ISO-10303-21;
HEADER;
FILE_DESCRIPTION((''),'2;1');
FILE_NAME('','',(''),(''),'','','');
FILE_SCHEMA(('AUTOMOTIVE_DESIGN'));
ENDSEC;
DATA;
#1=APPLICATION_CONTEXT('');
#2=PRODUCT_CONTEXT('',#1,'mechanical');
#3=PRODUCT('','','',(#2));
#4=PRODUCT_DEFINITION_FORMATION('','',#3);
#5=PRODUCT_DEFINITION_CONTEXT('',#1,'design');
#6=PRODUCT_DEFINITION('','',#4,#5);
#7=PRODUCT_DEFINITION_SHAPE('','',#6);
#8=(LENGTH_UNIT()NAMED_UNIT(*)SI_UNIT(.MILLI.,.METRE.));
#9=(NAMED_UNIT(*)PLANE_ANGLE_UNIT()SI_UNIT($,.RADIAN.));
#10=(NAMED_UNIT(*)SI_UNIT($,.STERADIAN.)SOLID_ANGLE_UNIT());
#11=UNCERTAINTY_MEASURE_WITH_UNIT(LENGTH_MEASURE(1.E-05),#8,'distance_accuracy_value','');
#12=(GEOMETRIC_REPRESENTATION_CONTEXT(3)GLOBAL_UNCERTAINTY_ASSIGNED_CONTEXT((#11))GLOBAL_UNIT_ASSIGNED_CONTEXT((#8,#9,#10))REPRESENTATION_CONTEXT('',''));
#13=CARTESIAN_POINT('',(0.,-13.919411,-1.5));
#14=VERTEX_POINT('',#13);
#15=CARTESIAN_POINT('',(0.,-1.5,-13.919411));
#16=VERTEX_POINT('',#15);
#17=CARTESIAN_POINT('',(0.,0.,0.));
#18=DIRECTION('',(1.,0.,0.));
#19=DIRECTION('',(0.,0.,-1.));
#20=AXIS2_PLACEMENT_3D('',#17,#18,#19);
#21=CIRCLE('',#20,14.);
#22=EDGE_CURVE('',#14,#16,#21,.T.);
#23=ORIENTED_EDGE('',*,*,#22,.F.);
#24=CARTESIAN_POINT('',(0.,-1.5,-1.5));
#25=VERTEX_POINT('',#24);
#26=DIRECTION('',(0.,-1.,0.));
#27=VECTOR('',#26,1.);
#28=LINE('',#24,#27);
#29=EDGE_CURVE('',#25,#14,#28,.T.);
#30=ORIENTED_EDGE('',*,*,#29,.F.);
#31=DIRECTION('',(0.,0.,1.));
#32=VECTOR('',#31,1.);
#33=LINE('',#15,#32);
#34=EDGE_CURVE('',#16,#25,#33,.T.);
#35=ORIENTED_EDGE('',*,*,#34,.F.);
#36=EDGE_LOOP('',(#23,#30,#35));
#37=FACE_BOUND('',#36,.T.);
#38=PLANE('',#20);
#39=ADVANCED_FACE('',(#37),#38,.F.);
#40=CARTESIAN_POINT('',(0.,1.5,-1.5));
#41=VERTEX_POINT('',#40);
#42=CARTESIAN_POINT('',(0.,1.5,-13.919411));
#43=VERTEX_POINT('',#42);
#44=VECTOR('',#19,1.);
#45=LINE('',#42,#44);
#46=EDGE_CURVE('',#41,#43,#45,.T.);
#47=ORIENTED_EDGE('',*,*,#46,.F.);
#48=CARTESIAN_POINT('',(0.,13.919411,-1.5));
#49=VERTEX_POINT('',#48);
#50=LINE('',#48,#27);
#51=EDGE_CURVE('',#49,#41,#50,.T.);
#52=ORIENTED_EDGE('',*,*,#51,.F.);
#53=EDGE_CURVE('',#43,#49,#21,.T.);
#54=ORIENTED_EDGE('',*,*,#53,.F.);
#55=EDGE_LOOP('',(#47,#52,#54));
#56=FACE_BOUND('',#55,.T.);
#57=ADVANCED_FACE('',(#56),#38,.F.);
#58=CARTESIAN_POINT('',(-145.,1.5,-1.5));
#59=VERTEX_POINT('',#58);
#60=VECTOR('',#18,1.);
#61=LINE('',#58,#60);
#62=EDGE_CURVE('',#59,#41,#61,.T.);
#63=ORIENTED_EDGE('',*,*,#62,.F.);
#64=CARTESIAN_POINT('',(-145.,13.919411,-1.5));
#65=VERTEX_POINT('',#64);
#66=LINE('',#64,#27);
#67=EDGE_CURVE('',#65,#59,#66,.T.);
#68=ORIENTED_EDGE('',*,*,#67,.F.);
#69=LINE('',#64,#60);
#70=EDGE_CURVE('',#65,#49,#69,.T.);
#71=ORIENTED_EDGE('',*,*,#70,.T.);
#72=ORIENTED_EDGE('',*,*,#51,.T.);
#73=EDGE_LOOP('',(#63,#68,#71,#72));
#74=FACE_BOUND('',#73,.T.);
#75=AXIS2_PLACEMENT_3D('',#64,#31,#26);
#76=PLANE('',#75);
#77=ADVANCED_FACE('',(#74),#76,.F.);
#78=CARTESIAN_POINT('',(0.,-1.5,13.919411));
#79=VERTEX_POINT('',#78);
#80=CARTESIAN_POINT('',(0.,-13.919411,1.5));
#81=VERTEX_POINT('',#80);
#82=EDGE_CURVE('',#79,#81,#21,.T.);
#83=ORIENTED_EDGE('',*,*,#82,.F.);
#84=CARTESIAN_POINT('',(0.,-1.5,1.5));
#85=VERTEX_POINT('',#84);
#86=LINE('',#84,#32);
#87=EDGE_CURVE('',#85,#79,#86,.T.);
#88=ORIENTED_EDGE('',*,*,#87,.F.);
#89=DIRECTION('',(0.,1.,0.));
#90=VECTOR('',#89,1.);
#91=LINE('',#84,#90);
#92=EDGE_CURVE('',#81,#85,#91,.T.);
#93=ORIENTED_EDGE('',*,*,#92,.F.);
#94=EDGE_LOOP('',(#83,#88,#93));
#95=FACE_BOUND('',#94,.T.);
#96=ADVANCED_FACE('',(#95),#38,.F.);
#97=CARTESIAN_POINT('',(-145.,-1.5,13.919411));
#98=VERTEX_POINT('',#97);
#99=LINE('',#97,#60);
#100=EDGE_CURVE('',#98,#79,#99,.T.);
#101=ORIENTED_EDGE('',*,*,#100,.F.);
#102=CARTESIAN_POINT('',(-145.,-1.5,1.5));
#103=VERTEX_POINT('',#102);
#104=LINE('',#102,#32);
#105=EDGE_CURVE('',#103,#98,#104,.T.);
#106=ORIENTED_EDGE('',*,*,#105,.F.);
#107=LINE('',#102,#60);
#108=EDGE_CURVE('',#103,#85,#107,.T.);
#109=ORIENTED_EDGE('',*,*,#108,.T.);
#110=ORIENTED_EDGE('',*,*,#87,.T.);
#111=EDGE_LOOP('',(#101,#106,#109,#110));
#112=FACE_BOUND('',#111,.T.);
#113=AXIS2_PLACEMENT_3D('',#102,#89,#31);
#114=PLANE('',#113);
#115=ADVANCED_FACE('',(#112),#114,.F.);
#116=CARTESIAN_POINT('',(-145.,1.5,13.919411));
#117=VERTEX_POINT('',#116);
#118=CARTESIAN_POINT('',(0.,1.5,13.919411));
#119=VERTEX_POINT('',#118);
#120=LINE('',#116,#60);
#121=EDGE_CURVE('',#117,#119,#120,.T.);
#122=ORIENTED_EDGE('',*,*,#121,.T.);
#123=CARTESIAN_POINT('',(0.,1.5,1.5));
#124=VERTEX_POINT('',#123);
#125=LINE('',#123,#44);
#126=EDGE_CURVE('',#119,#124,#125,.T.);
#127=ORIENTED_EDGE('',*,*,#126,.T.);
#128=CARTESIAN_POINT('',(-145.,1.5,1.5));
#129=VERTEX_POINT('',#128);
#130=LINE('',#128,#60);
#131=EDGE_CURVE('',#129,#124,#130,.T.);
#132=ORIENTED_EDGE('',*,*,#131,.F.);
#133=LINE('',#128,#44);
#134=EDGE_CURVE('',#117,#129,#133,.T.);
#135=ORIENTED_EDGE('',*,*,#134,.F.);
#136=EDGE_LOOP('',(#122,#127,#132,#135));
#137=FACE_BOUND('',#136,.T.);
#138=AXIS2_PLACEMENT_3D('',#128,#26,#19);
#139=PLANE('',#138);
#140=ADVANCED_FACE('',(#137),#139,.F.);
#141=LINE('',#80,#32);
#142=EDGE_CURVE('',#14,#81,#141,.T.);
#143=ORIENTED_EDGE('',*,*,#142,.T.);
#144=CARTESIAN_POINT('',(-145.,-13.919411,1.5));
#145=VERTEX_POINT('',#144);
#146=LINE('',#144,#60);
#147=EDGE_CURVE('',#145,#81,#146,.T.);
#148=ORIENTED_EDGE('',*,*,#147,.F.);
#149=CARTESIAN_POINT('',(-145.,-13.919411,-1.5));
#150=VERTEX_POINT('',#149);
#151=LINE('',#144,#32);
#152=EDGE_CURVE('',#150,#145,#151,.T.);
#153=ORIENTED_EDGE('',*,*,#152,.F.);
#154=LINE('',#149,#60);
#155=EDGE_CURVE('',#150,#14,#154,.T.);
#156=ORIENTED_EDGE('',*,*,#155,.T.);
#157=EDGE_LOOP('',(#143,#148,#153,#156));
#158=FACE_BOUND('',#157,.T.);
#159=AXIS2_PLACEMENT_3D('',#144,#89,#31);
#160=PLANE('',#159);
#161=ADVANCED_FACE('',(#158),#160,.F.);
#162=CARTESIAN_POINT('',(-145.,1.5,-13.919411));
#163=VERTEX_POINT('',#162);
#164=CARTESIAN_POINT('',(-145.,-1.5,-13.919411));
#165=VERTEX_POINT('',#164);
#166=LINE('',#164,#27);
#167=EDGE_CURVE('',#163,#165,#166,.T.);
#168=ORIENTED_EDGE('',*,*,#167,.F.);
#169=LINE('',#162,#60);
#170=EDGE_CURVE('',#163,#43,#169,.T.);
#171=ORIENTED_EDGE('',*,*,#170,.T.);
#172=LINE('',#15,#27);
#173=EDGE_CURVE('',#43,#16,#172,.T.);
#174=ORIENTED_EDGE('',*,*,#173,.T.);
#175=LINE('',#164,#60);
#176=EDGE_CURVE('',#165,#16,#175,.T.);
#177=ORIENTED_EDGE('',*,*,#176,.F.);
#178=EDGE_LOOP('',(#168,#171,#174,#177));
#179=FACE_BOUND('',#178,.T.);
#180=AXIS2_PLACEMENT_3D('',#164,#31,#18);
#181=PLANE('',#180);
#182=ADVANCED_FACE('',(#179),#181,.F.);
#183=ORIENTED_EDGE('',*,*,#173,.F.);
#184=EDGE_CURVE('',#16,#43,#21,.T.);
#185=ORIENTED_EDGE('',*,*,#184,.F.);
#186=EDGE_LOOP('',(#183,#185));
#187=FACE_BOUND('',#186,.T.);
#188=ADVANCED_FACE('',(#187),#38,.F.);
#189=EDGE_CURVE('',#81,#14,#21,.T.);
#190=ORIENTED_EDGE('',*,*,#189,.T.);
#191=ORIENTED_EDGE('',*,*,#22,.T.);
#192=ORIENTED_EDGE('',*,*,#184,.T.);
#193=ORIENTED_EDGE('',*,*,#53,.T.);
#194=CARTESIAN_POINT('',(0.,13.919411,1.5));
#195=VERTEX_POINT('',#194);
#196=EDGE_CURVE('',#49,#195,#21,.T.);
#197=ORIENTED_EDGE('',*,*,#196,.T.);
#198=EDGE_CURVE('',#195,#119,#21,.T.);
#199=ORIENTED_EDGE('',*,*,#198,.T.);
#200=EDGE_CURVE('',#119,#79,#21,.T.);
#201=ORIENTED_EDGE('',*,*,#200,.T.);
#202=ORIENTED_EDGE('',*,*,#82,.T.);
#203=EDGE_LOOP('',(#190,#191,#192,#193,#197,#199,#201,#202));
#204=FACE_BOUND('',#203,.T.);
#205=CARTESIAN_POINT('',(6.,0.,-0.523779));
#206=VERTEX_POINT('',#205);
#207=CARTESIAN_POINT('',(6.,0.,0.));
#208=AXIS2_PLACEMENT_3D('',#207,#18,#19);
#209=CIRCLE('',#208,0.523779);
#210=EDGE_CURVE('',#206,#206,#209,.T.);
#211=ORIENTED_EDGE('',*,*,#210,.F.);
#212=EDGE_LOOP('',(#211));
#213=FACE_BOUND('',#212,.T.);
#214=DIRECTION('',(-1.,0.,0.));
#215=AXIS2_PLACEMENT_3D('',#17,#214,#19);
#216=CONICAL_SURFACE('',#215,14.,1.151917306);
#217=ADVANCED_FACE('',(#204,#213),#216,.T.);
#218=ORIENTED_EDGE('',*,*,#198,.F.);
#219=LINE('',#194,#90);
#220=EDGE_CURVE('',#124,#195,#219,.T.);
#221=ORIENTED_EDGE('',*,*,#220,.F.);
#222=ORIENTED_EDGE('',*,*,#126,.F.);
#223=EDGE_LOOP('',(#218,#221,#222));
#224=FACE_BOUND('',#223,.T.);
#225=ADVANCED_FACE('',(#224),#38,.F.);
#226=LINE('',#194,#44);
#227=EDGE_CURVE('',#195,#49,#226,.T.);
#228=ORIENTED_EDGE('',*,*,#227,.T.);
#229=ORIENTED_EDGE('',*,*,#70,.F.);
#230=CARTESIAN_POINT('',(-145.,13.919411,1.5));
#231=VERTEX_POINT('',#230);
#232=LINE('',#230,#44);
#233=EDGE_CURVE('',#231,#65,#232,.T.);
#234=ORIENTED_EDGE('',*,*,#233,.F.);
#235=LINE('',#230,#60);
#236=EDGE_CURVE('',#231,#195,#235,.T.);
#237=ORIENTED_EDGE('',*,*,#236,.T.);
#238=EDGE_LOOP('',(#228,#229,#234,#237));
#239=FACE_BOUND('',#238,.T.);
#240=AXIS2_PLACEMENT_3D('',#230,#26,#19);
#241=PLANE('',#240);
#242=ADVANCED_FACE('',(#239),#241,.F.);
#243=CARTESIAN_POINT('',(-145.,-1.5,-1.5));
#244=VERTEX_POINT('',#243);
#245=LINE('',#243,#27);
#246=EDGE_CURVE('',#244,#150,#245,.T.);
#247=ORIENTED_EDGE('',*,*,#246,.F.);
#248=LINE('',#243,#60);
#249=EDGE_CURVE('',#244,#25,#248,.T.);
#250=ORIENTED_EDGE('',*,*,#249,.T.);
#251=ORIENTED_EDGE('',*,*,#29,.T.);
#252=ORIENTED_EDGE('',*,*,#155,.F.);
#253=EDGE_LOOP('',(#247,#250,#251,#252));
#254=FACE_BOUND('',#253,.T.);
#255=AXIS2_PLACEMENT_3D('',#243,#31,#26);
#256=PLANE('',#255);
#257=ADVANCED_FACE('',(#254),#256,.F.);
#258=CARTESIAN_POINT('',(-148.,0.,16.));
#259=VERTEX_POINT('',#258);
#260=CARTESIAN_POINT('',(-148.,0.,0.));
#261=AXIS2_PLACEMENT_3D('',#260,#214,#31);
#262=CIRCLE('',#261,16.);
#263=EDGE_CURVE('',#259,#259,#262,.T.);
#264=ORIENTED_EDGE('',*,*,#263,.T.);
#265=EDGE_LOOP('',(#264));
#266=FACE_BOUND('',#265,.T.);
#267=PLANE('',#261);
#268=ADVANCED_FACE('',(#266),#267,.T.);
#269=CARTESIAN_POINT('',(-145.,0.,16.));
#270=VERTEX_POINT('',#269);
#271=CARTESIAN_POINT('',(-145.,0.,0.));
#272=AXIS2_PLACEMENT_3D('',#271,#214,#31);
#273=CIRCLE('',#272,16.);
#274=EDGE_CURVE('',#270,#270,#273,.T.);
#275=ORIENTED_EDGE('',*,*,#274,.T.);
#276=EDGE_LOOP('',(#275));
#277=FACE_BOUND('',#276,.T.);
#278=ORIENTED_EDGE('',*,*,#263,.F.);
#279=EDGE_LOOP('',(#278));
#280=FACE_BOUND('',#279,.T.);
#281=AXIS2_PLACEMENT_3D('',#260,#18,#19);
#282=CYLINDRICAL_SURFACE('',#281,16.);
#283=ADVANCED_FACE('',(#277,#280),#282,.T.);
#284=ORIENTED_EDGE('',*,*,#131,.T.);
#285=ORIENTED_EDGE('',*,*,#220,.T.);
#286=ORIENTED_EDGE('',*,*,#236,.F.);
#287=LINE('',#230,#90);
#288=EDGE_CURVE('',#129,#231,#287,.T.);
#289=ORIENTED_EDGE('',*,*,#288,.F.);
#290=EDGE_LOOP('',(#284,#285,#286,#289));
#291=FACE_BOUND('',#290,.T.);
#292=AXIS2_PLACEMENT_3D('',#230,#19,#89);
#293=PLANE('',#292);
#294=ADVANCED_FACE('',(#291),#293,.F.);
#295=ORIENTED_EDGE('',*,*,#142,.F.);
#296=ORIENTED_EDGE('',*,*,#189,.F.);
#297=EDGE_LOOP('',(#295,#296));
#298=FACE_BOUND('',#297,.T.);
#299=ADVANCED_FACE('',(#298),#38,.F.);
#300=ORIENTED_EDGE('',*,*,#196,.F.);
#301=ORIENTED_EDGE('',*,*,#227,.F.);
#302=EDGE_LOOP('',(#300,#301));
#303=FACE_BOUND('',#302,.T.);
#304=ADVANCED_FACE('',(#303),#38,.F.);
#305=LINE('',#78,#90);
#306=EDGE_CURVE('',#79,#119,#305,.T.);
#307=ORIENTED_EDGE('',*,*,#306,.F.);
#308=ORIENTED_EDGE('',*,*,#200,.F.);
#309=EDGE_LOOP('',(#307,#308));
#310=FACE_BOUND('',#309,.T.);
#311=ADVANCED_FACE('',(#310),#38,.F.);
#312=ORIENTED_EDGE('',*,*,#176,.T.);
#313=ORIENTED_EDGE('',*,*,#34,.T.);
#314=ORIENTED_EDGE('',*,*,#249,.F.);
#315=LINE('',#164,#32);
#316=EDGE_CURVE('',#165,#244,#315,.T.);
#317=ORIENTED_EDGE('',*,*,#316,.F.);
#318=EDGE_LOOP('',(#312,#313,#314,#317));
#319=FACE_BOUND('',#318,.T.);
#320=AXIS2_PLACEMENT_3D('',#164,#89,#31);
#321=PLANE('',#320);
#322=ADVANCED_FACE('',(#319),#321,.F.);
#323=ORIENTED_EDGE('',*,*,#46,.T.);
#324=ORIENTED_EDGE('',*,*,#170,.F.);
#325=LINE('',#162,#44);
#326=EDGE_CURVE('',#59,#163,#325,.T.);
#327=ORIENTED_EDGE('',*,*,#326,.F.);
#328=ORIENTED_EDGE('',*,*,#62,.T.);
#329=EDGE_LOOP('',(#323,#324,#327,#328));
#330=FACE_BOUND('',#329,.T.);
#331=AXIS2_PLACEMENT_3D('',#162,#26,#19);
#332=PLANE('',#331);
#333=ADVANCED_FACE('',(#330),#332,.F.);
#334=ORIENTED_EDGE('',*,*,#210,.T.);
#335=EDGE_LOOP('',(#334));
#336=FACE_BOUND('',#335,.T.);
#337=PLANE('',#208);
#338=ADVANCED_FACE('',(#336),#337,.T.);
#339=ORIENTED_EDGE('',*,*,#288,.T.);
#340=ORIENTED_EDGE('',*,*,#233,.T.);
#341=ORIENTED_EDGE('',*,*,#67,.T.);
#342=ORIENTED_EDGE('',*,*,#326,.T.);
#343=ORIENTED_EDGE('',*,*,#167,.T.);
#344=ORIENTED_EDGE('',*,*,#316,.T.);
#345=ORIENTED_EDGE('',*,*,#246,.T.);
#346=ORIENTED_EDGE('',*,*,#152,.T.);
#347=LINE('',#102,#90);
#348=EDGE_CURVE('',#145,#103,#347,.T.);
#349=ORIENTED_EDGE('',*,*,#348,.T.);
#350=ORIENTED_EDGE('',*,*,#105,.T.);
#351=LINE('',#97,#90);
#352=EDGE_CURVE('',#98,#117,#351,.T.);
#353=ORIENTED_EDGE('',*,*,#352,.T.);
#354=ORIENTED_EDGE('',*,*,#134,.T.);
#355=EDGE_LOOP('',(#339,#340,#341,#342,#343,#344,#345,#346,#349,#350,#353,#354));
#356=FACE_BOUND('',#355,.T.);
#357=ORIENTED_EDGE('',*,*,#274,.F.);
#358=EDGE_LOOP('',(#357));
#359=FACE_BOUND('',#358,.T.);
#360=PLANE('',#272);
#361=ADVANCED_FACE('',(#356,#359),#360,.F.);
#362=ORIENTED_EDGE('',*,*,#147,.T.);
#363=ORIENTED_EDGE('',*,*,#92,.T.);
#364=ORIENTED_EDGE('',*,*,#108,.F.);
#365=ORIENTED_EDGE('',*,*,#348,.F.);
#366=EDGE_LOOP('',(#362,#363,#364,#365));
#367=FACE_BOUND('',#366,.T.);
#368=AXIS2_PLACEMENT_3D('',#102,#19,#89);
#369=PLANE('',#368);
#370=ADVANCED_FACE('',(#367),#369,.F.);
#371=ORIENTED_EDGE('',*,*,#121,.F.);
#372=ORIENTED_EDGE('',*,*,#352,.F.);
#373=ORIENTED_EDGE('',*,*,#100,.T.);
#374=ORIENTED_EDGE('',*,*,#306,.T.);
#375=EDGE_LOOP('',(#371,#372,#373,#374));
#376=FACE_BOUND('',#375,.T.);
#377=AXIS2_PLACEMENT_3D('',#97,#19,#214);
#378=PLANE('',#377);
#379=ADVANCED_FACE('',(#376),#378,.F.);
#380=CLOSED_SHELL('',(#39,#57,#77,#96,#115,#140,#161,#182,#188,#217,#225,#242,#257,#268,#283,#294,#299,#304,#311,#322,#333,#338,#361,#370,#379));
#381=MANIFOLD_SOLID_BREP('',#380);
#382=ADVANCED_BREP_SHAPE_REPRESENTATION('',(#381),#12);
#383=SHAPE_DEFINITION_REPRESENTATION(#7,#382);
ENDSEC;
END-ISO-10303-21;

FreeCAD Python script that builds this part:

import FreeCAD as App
import Part
import Sketcher
from FreeCAD import Vector

doc = App.newDocument("Part")
body = doc.addObject("PartDesign::Body", "Body")

sketch1 = doc.addObject("Sketcher::SketchObject", "Sketch")
body.addObject(sketch1)
sketch1.AttachmentSupport = (doc.YZ_Plane, [""])
sketch1.MapMode = "FlatFace"
sketch1.addGeometry(Part.Circle(Vector(0, 0, 0), Vector(0, 0, 1), 14), False)
sketch1.addConstraint([
    Sketcher.Constraint("Coincident", 0, 3, -1, 1),
    Sketcher.Constraint("Diameter", 0, 28.0),
])
pad1 = doc.addObject("PartDesign::Pad", "Pad")
body.addObject(pad1)
pad1.Profile = sketch1
pad1.Length = 6
pad1.TaperAngle = -66

sketch2 = doc.addObject("Sketcher::SketchObject", "Sketch001")
body.addObject(sketch2)
sketch2.AttachmentSupport = (doc.YZ_Plane, [""])
sketch2.MapMode = "FlatFace"
sketch2.addGeometry([
    Part.LineSegment(Vector(-13.9, 1.5, 0), Vector(-1.5, 1.5, 0)),
    Part.LineSegment(Vector(-1.5, 1.5, 0), Vector(-1.5, 13.9, 0)),
    Part.LineSegment(Vector(-1.5, 13.9, 0), Vector(1.5, 13.9, 0)),
    Part.LineSegment(Vector(1.5, 13.9, 0), Vector(1.5, 1.5, 0)),
    Part.LineSegment(Vector(1.5, 1.5, 0), Vector(13.9, 1.5, 0)),
    Part.LineSegment(Vector(13.9, 1.5, 0), Vector(13.9, -1.5, 0)),
    Part.LineSegment(Vector(13.9, -1.5, 0), Vector(1.5, -1.5, 0)),
    Part.LineSegment(Vector(1.5, -1.5, 0), Vector(1.5, -13.9, 0)),
    Part.LineSegment(Vector(1.5, -13.9, 0), Vector(-1.5, -13.9, 0)),
    Part.LineSegment(Vector(-1.5, -13.9, 0), Vector(-1.5, -1.5, 0)),
    Part.LineSegment(Vector(-1.5, -1.5, 0), Vector(-13.9, -1.5, 0)),
    Part.LineSegment(Vector(-13.9, -1.5, 0), Vector(-13.9, 1.5, 0)),
], False)
sketch2.addConstraint([
    Sketcher.Constraint("Coincident", 0, 2, 1, 1),
    Sketcher.Constraint("Coincident", 1, 2, 2, 1),
    Sketcher.Constraint("Coincident", 2, 2, 3, 1),
    Sketcher.Constraint("Coincident", 3, 2, 4, 1),
    Sketcher.Constraint("Coincident", 4, 2, 5, 1),
    Sketcher.Constraint("Coincident", 5, 2, 6, 1),
    Sketcher.Constraint("Coincident", 6, 2, 7, 1),
    Sketcher.Constraint("Coincident", 7, 2, 8, 1),
    Sketcher.Constraint("Coincident", 8, 2, 9, 1),
    Sketcher.Constraint("Coincident", 9, 2, 10, 1),
    Sketcher.Constraint("Coincident", 10, 2, 11, 1),
    Sketcher.Constraint("Coincident", 11, 2, 0, 1),
    Sketcher.Constraint("Horizontal", 0),
    Sketcher.Constraint("Vertical", 1),
    Sketcher.Constraint("Horizontal", 2),
    Sketcher.Constraint("Vertical", 3),
    Sketcher.Constraint("Horizontal", 4),
    Sketcher.Constraint("Vertical", 5),
    Sketcher.Constraint("Horizontal", 6),
    Sketcher.Constraint("Vertical", 7),
    Sketcher.Constraint("Horizontal", 8),
    Sketcher.Constraint("Vertical", 9),
    Sketcher.Constraint("Horizontal", 10),
    Sketcher.Constraint("Vertical", 11),
    Sketcher.Constraint("Symmetric", 0, 2, 6, 2, -1, 1),
    Sketcher.Constraint("Symmetric", 2, 2, 8, 2, -1, 1),
    Sketcher.Constraint("Symmetric", 4, 2, 10, 2, -1, 1),
    Sketcher.Constraint("Symmetric", 0, 2, 3, 2, -2),
    Sketcher.Constraint("Equal", 10, 1),
    Sketcher.Constraint("Equal", 8, 5),
    Sketcher.Constraint("DistanceX", 2, 1, 2, 2, 3.0),
    Sketcher.Constraint("DistanceX", 0, 1, 0, 2, 12.419411),
])
pad2 = doc.addObject("PartDesign::Pad", "Pad001")
body.addObject(pad2)
pad2.Profile = sketch2
pad2.Length = 145
pad2.Reversed = True

sketch3 = doc.addObject("Sketcher::SketchObject", "Sketch002")
body.addObject(sketch3)
sketch3.AttachmentSupport = (doc.YZ_Plane, [""])
sketch3.MapMode = "FlatFace"
sketch3.AttachmentOffset = App.Placement(Vector(0, 0, -145), App.Rotation())
sketch3.addGeometry(Part.Circle(Vector(0, 0, 0), Vector(0, 0, 1), 16), False)
sketch3.addConstraint([
    Sketcher.Constraint("Coincident", 0, 3, -1, 1),
    Sketcher.Constraint("Diameter", 0, 32.0),
])
pad3 = doc.addObject("PartDesign::Pad", "Pad002")
body.addObject(pad3)
pad3.Profile = sketch3
pad3.Length = 3
pad3.Reversed = True

doc.recompute()
